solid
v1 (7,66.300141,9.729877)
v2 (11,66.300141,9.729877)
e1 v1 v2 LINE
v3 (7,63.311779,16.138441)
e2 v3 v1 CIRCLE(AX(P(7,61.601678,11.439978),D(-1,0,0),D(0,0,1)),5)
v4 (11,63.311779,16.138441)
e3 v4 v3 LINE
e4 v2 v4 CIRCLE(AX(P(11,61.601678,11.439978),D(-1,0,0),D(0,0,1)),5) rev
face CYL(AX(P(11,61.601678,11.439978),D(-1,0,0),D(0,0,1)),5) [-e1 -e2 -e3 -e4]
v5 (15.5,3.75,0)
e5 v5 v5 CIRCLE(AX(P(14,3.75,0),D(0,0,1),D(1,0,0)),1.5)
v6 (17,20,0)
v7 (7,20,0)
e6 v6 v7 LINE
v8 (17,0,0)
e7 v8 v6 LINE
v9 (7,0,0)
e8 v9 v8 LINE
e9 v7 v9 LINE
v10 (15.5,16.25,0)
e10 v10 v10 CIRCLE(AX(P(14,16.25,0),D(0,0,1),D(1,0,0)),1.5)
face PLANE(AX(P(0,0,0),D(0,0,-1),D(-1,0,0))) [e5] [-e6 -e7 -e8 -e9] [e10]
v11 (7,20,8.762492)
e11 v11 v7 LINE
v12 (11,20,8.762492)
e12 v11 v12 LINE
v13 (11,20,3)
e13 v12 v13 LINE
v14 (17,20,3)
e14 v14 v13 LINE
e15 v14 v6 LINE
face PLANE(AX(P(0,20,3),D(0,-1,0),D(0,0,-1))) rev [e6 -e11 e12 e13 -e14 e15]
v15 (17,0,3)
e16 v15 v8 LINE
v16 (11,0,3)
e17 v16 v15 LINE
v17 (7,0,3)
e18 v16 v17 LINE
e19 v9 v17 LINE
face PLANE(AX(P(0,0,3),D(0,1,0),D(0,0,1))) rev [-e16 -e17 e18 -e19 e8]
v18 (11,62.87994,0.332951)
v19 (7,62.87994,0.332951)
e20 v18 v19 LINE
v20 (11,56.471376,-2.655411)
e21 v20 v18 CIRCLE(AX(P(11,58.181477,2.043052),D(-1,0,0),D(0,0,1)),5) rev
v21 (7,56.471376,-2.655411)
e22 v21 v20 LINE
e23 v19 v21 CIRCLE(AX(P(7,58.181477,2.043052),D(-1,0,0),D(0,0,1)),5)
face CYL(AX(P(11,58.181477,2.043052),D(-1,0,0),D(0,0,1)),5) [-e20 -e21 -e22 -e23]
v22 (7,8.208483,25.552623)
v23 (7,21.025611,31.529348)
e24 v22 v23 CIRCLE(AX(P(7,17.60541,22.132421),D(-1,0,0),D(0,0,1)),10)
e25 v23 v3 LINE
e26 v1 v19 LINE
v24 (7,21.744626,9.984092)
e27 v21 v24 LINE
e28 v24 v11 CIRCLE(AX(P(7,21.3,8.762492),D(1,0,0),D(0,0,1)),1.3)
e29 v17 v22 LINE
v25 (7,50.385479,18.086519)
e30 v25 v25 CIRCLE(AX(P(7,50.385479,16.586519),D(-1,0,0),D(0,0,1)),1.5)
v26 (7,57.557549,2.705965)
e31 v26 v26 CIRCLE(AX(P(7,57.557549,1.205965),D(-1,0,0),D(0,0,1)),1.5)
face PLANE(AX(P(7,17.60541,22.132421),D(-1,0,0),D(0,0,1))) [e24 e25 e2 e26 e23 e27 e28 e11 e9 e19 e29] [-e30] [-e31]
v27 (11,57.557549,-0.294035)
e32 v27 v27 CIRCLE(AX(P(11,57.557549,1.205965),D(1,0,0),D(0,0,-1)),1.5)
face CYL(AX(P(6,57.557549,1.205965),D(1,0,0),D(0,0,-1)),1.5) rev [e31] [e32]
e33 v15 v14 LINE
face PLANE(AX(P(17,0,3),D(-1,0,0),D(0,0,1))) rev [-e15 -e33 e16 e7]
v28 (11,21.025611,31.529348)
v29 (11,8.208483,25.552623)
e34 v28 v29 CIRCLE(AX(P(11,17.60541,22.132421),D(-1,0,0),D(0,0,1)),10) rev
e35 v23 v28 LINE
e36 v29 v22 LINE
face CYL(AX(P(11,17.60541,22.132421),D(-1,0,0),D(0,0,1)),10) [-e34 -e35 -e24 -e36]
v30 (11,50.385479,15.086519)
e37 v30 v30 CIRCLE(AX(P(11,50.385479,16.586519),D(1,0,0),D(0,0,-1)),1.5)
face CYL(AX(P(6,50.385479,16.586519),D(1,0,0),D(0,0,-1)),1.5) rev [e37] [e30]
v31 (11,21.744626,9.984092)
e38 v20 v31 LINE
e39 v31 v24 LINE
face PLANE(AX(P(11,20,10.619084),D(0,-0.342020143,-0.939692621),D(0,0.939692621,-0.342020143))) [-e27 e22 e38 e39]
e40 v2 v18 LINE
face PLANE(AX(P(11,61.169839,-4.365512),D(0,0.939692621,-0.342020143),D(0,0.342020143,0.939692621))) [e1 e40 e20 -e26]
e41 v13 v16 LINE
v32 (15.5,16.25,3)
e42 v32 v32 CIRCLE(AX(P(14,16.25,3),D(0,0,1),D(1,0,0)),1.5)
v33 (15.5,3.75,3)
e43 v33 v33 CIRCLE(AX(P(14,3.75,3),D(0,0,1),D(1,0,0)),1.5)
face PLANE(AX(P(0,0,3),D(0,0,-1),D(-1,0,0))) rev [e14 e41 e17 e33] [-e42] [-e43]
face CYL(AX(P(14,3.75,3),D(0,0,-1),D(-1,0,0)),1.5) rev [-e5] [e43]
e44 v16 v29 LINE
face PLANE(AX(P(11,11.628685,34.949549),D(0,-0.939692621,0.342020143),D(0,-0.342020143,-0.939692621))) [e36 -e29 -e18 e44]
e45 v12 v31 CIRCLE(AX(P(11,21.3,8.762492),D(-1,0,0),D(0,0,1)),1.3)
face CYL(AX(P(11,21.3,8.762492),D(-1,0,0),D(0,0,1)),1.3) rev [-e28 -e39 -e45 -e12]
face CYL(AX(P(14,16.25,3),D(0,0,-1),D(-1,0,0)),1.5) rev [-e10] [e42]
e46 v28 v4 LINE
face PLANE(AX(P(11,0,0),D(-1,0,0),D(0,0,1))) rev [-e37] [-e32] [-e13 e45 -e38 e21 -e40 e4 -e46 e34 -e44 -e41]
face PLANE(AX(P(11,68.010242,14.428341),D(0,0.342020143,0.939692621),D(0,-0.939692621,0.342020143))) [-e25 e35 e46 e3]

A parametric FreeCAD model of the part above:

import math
import FreeCAD as App
import Part
import Sketcher
from FreeCAD import Vector
Q = App.Units.Quantity


def edges_at(feature, points):
    """Names of the edges that pass closest to the given points."""
    edges = feature.Shape.Edges
    near = lambda p: min(range(len(edges)), key=lambda i: edges[i].distToShape(Part.Vertex(*p))[0])
    return sorted({f"Edge{near(p) + 1}" for p in points})


def add_polygon(sketch, points):
    """Adds a closed chain of lines whose ends are joined by coincident constraints."""
    first, n = sketch.GeometryCount, len(points)
    for a, b in zip(points, points[1:] + points[:1]):
        sketch.addGeometry(Part.LineSegment(App.Vector(*a, 0), App.Vector(*b, 0)), False)
    for i in range(n):
        sketch.addConstraint(Sketcher.Constraint("Coincident", first + i, 2, first + (i + 1) % n, 1))

doc = App.newDocument("Part")
body = doc.addObject("PartDesign::Body", "Body")

# Sketch on XY plane
sketch1 = body.newObject("Sketcher::SketchObject", "Sketch")
sketch1.AttachmentSupport = (doc.getObject("XY_Plane"), [""])
sketch1.MapMode = "FlatFace"
add_polygon(sketch1, [(0, 20), (0, 0), (17, 0), (17, 20)])  # lines 0-3
sketch1.addGeometry(Part.Circle(Vector(3, 3.75, 0), Vector(0, 0, 1), 1.5), False)  # 4
sketch1.addGeometry(Part.Circle(Vector(14, 3.75, 0), Vector(0, 0, 1), 1.5), False)  # 5
sketch1.addGeometry(Part.Circle(Vector(3, 16.25, 0), Vector(0, 0, 1), 1.5), False)  # 6
sketch1.addGeometry(Part.Circle(Vector(14, 16.25, 0), Vector(0, 0, 1), 1.5), False)  # 7
sketch1.addConstraint([
    Sketcher.Constraint("Vertical", 0),
    Sketcher.Constraint("Horizontal", 1),
    Sketcher.Constraint("Vertical", 2),
    Sketcher.Constraint("Horizontal", 3),
    Sketcher.Constraint("Coincident", 0, 2, -1, 1),
    Sketcher.Constraint("Equal", 4, 5),
    Sketcher.Constraint("Equal", 5, 6),
    Sketcher.Constraint("Equal", 6, 7),
    Sketcher.Constraint("Horizontal", 4, 3, 5, 3),
    Sketcher.Constraint("Horizontal", 6, 3, 7, 3),
    Sketcher.Constraint("Vertical", 4, 3, 6, 3),
    Sketcher.Constraint("Vertical", 5, 3, 7, 3),
    Sketcher.Constraint("Diameter", 4, 3.0),
    Sketcher.Constraint("DistanceX", 1, 1, 1, 2, 17.0),
    Sketcher.Constraint("DistanceY", 0, 2, 0, 1, 20.0),
    Sketcher.Constraint("DistanceX", -1, 1, 4, 3, 3.0),
    Sketcher.Constraint("DistanceX", -1, 1, 5, 3, 14.0),
    Sketcher.Constraint("DistanceY", 4, 3, 6, 3, 12.5),
    Sketcher.Constraint("DistanceY", -1, 1, 4, 3, 3.75),
])
pad1 = body.newObject("PartDesign::Pad", "Pad")
pad1.Profile = sketch1
pad1.Length = 3

# Sketch on YZ plane
sketch2 = body.newObject("Sketcher::SketchObject", "Sketch001")
sketch2.AttachmentSupport = (doc.getObject("YZ_Plane"), [""])
sketch2.MapMode = "FlatFace"
sketch2.AttachmentOffset = App.Placement(Vector(0, 0, 6), App.Rotation())
add_polygon(sketch2, [(20, 10.619084), (20, 3), (0, 3), (11.628685, 34.949549), (68.010242, 14.428341), (61.169839, -4.365512)])  # lines 0-5
sketch2.addConstraint([
    Sketcher.Constraint("Vertical", 0),
    Sketcher.Constraint("Horizontal", 1),
    Sketcher.Constraint("PointOnObject", 1, 2, -2),
    Sketcher.Constraint("Perpendicular", 2, 3),
    Sketcher.Constraint("Perpendicular", 3, 4),
    Sketcher.Constraint("Perpendicular", 4, 5),
    Sketcher.Constraint("DistanceX", 1, 2, 1, 1, 20.0),
    Sketcher.Constraint("Angle", 2, Q("70 deg")),
    Sketcher.Constraint("Distance", 2, 34.0),
    Sketcher.Constraint("Distance", 3, 60.0),
    Sketcher.Constraint("Distance", 4, 20.0),
    Sketcher.Constraint("DistanceY", -1, 1, 0, 2, 3.0),
])
pad2 = body.newObject("PartDesign::Pad", "Pad001")
pad2.Profile = sketch2
pad2.Length = 5

# Sketch on YZ plane
sketch3 = body.newObject("Sketcher::SketchObject", "Sketch002")
sketch3.AttachmentSupport = (doc.getObject("YZ_Plane"), [""])
sketch3.MapMode = "FlatFace"
sketch3.AttachmentOffset = App.Placement(Vector(0, 0, 11), App.Rotation())
sketch3.addGeometry([
    Part.Circle(Vector(50.385479, 16.586519, 0), Vector(0, 0, 1), 1.5),
    Part.Circle(Vector(57.557549, 1.205965, 0), Vector(0, 0, 1), 1.5),
], False)
sketch3.addConstraint([
    Sketcher.Constraint("Equal", 0, 1),
    Sketcher.Constraint("Diameter", 0, 3.0),
    Sketcher.Constraint("DistanceX", -1, 1, 0, 3, 50.385479),
    Sketcher.Constraint("DistanceY", -1, 1, 0, 3, 16.586519),
    Sketcher.Constraint("DistanceX", -1, 1, 1, 3, 57.557549),
    Sketcher.Constraint("DistanceY", -1, 1, 1, 3, 1.205965),
])
pocket1 = body.newObject("PartDesign::Pocket", "Pocket")
pocket1.Profile = sketch3
pocket1.Length = 5
doc.recompute()

fillet = body.newObject("PartDesign::Fillet", "Fillet")
fillet.Base = (pocket1, edges_at(pocket1, [(8.5, 61.17, -4.366), (8.5, 68.01, 14.428)]))
fillet.Radius = 5
doc.recompute()

fillet2 = body.newObject("PartDesign::Fillet", "Fillet001")
fillet2.Base = (fillet, edges_at(fillet, [(8.5, 20, 10.619)]))
fillet2.Radius = 1.3
doc.recompute()

fillet3 = body.newObject("PartDesign::Fillet", "Fillet002")
fillet3.Base = (fillet2, edges_at(fillet2, [(8.5, 11.629, 34.95)]))
fillet3.Radius = 10

# Sketch on XY plane
sketch4 = body.newObject("Sketcher::SketchObject", "Sketch003")
sketch4.AttachmentSupport = (doc.getObject("XY_Plane"), [""])
sketch4.MapMode = "FlatFace"
sketch4.AttachmentOffset = App.Placement(Vector(0, 0, 3), App.Rotation())
add_polygon(sketch4, [(0, 20), (0, 0), (6, 0), (6, 20)])  # lines 0-3
sketch4.addConstraint([
    Sketcher.Constraint("Vertical", 0),
    Sketcher.Constraint("Horizontal", 1),
    Sketcher.Constraint("Vertical", 2),
    Sketcher.Constraint("Horizontal", 3),
    Sketcher.Constraint("Coincident", 0, 2, -1, 1),
    Sketcher.Constraint("DistanceX", 1, 1, 1, 2, 6.0),
    Sketcher.Constraint("DistanceY", 0, 2, 0, 1, 20.0),
])
pocket2 = body.newObject("PartDesign::Pocket", "Pocket001")
pocket2.Profile = sketch4
pocket2.Length = 10

# Sketch on YZ plane
sketch5 = body.newObject("Sketcher::SketchObject", "Sketch004")
sketch5.AttachmentSupport = (doc.getObject("YZ_Plane"), [""])
sketch5.MapMode = "FlatFace"
sketch5.AttachmentOffset = App.Placement(Vector(0, 0, 6), App.Rotation())
sketch5.addGeometry([
    Part.LineSegment(Vector(0, 3, 0), Vector(8.208483, 25.552623, 0)),  # 0
    Part.ArcOfCircle(Part.Circle(Vector(17.60541, 22.132421, 0), Vector(0, 0, 1), 10), math.radians(70), math.radians(160)),  # 1
    Part.LineSegment(Vector(21.025611, 31.529348, 0), Vector(63.311779, 16.138441, 0)),  # 2
    Part.ArcOfCircle(Part.Circle(Vector(61.601678, 11.439978, 0), Vector(0, 0, 1), 5), math.radians(-20), math.radians(70)),  # 3
    Part.LineSegment(Vector(66.300141, 9.729877, 0), Vector(62.87994, 0.332951, 0)),  # 4
    Part.ArcOfCircle(Part.Circle(Vector(58.181477, 2.043052, 0), Vector(0, 0, 1), 5), math.radians(-110), math.radians(-20)),  # 5
    Part.LineSegment(Vector(56.471376, -2.655411, 0), Vector(21.744626, 9.984092, 0)),  # 6
    Part.ArcOfCircle(Part.Circle(Vector(21.3, 8.762492, 0), Vector(0, 0, 1), 1.3), math.radians(70), math.radians(180)),  # 7
    Part.LineSegment(Vector(20, 8.762492, 0), Vector(20, 0, 0)),  # 8
    Part.LineSegment(Vector(20, 0, 0), Vector(0, 0, 0)),  # 9
    Part.LineSegment(Vector(0, 0, 0), Vector(0, 3, 0)),  # 10
    Part.Circle(Vector(50.385479, 16.586519, 0), Vector(0, 0, 1), 1.5),  # 11
    Part.Circle(Vector(57.557549, 1.205965, 0), Vector(0, 0, 1), 1.5),  # 12
], False)
sketch5.addConstraint([
    Sketcher.Constraint("Tangent", 0, 2, 1, 2),
    Sketcher.Constraint("Tangent", 1, 1, 2, 1),
    Sketcher.Constraint("Tangent", 2, 2, 3, 2),
    Sketcher.Constraint("Tangent", 3, 1, 4, 1),
    Sketcher.Constraint("Tangent", 4, 2, 5, 2),
    Sketcher.Constraint("Tangent", 5, 1, 6, 1),
    Sketcher.Constraint("Tangent", 6, 2, 7, 1),
    Sketcher.Constraint("Tangent", 7, 2, 8, 1),
    Sketcher.Constraint("Coincident", 8, 2, 9, 1),
    Sketcher.Constraint("Coincident", 9, 2, 10, 1),
    Sketcher.Constraint("Coincident", 10, 2, 0, 1),
    Sketcher.Constraint("Vertical", 8),
    Sketcher.Constraint("Horizontal", 9),
    Sketcher.Constraint("Vertical", 10),
    Sketcher.Constraint("Coincident", 9, 2, -1, 1),
    Sketcher.Constraint("Equal", 3, 5),
    Sketcher.Constraint("Equal", 11, 12),
    Sketcher.Constraint("Perpendicular", 0, 2),
    Sketcher.Constraint("Perpendicular", 2, 4),
    Sketcher.Constraint("Perpendicular", 4, 6),
    Sketcher.Constraint("Diameter", 11, 3.0),
    Sketcher.Constraint("Radius", 1, 10.0),
    Sketcher.Constraint("Radius", 3, 5.0),
    Sketcher.Constraint("Radius", 7, 1.3),
    Sketcher.Constraint("DistanceX", 9, 2, 9, 1, 20.0),
    Sketcher.Constraint("DistanceY", 10, 1, 10, 2, 3.0),
    Sketcher.Constraint("Angle", 0, Q("70 deg")),
    Sketcher.Constraint("Distance", 0, 24.0),
    Sketcher.Constraint("Distance", 2, 45.0),
    Sketcher.Constraint("Distance", 4, 10.0),
    Sketcher.Constraint("DistanceX", 11, 3, 3, 3, 11.216199),
    Sketcher.Constraint("DistanceY", -1, 1, 11, 3, 16.586519),
    Sketcher.Constraint("DistanceX", -1, 1, 12, 3, 57.557549),
    Sketcher.Constraint("DistanceY", -1, 1, 12, 3, 1.205965),
])
pocket3 = body.newObject("PartDesign::Pocket", "Pocket002")
pocket3.Profile = sketch5
pocket3.Length = 1
pocket3.Reversed = True

doc.recompute()
